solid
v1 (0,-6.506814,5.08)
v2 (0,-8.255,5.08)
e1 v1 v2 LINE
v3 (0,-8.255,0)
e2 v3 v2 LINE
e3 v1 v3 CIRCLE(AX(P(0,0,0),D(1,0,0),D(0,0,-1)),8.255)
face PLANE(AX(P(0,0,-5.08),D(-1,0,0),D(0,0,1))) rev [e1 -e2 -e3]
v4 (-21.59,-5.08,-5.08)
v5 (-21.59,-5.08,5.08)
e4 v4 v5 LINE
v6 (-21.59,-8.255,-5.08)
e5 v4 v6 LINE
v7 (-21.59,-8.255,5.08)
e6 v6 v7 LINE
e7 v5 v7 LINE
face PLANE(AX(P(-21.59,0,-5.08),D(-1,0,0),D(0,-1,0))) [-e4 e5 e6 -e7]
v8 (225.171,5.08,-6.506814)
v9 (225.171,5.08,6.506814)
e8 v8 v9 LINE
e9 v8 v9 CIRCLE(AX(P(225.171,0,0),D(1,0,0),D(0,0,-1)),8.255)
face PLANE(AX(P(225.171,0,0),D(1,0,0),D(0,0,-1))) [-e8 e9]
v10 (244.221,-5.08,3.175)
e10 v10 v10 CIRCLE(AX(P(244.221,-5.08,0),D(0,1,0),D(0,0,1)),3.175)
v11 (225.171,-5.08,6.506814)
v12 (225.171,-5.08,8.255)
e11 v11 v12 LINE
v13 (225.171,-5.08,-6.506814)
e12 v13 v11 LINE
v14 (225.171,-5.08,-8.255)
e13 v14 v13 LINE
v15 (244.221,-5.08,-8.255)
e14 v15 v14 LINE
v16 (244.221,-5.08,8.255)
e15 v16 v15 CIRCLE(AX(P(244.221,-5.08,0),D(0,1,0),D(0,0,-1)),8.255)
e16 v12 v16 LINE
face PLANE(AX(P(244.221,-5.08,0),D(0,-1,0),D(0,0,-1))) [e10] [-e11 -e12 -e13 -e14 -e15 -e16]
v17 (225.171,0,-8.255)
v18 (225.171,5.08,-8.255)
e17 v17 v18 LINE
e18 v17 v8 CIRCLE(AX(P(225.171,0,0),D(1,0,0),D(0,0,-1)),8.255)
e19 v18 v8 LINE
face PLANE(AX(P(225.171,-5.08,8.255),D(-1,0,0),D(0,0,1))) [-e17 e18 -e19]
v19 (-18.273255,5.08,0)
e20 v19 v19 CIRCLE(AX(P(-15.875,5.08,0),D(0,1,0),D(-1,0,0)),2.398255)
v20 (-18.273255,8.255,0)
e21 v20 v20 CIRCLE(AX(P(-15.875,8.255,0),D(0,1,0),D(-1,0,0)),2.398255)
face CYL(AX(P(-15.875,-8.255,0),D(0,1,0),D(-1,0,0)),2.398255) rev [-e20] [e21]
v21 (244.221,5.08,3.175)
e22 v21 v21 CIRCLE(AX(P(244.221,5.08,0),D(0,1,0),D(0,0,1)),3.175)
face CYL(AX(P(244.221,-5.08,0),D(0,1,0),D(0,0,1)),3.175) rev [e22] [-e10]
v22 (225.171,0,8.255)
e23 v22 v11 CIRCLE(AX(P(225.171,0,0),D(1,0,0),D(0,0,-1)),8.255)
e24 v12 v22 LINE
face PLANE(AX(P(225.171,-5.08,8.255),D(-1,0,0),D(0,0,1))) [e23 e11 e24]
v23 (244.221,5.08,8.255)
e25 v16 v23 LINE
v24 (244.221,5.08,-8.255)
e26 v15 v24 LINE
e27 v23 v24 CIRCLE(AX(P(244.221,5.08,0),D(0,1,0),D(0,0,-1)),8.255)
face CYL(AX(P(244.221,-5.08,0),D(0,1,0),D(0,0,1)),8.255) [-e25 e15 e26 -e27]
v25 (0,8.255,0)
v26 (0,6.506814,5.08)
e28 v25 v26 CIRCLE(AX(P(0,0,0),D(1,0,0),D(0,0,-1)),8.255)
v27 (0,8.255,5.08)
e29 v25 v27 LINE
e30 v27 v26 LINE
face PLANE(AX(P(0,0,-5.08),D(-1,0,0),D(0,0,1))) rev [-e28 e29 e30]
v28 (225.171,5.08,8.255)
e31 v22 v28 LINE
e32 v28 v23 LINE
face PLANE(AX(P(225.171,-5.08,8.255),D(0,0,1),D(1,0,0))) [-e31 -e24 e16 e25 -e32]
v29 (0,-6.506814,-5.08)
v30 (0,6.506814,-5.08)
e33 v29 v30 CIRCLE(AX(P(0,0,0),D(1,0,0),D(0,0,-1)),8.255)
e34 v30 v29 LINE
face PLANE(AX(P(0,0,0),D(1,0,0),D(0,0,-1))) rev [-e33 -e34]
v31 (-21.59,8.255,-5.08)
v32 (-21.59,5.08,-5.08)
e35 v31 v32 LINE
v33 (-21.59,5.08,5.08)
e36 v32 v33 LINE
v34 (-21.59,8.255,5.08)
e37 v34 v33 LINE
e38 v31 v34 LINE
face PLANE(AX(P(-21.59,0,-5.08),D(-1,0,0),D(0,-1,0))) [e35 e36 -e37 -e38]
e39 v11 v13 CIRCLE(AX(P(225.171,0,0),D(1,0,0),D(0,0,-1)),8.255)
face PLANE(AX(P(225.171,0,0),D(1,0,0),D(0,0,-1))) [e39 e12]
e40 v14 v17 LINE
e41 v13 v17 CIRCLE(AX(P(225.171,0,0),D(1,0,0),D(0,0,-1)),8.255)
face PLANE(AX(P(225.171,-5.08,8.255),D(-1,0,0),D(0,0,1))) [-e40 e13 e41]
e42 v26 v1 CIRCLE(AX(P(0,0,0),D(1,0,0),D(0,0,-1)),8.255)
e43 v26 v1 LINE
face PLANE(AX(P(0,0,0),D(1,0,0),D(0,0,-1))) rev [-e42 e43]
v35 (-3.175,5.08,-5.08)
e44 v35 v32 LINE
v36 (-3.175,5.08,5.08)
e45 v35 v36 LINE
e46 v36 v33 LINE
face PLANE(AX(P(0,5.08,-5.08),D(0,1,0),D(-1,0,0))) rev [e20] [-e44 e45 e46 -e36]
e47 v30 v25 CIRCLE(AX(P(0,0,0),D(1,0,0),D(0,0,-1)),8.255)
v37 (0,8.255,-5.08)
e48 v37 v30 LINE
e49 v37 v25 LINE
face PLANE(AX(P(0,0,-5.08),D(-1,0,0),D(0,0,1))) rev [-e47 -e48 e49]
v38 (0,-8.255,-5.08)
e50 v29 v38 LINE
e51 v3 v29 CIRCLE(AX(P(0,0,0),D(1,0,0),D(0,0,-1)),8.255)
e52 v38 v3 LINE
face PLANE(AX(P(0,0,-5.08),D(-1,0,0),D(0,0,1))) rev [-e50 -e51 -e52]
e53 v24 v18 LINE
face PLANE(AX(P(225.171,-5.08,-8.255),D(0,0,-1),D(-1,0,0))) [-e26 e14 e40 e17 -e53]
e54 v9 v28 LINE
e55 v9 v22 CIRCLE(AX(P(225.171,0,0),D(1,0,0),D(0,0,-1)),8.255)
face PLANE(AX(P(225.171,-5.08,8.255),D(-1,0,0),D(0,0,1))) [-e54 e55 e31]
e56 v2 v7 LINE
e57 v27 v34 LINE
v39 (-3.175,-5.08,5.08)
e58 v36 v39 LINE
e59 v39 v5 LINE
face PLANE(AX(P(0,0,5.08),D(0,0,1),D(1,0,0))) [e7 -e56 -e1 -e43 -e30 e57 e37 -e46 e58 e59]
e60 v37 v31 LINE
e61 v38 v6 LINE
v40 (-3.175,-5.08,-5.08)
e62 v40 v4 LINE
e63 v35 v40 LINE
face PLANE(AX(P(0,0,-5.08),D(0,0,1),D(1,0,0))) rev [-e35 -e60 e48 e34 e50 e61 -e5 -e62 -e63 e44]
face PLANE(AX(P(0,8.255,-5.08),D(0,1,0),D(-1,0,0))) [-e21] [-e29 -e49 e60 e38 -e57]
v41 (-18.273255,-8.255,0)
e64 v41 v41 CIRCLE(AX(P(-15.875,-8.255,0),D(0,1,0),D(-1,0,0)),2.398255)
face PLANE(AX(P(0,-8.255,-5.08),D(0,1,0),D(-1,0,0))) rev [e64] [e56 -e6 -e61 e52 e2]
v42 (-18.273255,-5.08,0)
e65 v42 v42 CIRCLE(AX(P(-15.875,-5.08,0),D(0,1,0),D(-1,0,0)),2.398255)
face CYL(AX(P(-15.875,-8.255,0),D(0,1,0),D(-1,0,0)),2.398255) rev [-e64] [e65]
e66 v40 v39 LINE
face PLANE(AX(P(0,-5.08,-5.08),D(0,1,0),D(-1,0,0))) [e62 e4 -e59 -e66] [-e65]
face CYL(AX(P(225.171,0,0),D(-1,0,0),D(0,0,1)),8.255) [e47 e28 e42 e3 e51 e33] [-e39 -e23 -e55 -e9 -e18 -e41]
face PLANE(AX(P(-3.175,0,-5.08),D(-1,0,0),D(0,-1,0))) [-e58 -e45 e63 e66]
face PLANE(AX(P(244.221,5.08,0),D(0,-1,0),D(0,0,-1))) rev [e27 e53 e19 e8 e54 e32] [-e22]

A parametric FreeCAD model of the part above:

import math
import FreeCAD as App
import Part
import Sketcher
from FreeCAD import Vector
Q = App.Units.Quantity


def add_polygon(sketch, points):
    """Adds a closed chain of lines whose ends are joined by coincident constraints."""
    first, n = sketch.GeometryCount, len(points)
    for a, b in zip(points, points[1:] + points[:1]):
        sketch.addGeometry(Part.LineSegment(App.Vector(*a, 0), App.Vector(*b, 0)), False)
    for i in range(n):
        sketch.addConstraint(Sketcher.Constraint("Coincident", first + i, 2, first + (i + 1) % n, 1))

doc = App.newDocument("Part")
params = doc.addObject("Spreadsheet::Sheet", "Params")
for row, (alias, value) in enumerate([
    ("sketch1_diameter", "0.65 in"),
    ("pad1_length", "8.865 in"),
    ("sketch2_diameter", "0.25 in"),
    ("sketch2_radius", "0.325 in"),
    ("sketch2_width", "0.75 in"),
    ("pad2_length", "0.2 in"),
    ("pad2_length2", "0.2 in"),
    ("sketch3_height", "0.4 in"),
    ("sketch3_width", "0.85 in"),
    ("sketch3_height2", "0.65 in"),
    ("sketch3_width2", "0.725 in"),
    ("pad3_length", "0.2 in"),
    ("pad3_length2", "0.2 in"),
], start=1):
    params.set(f"A{row}", alias)
    params.set(f"B{row}", "=" + value)
    params.setAlias(f"B{row}", alias)

body = doc.addObject("PartDesign::Body", "Body")

sketch1 = body.newObject("Sketcher::SketchObject", "Sketch")
sketch1.AttachmentSupport = (doc.getObject("YZ_Plane"), [""])
sketch1.MapMode = "FlatFace"
sketch1.addGeometry(Part.Circle(Vector(0, 0, 0), Vector(0, 0, 1), 8), False)
sketch1.addConstraint([
    Sketcher.Constraint("Coincident", 0, 3, -1, 1),
    Sketcher.Constraint("Diameter", 0, Q("0.65 in")),
])
sketch1.setExpression("Constraints[1]", "Params.sketch1_diameter")
pad1 = body.newObject("PartDesign::Pad", "Pad")
pad1.Profile = sketch1
pad1.setExpression("Length", "Params.pad1_length")

sketch2 = body.newObject("Sketcher::SketchObject", "Sketch001")
sketch2.AttachmentSupport = (doc.getObject("XZ_Plane"), [""])
sketch2.MapMode = "FlatFace"
sketch2.addGeometry([
    Part.LineSegment(Vector(225.2, -8.3, 0), Vector(225.2, 8.3, 0)),
    Part.LineSegment(Vector(225.2, 8.3, 0), Vector(244.2, 8.3, 0)),
    Part.ArcOfCircle(Part.Circle(Vector(244.2, 0, 0), Vector(0, 0, 1), 8.3), math.radians(-90), math.radians(90)),
    Part.LineSegment(Vector(244.2, -8.3, 0), Vector(225.2, -8.3, 0)),
    Part.Circle(Vector(244.2, 0, 0), Vector(0, 0, 1), 3.2),
], False)
sketch2.addConstraint([
    Sketcher.Constraint("Coincident", 0, 2, 1, 1),
    Sketcher.Constraint("Tangent", 1, 2, 2, 2),
    Sketcher.Constraint("Tangent", 2, 1, 3, 1),
    Sketcher.Constraint("Coincident", 3, 2, 0, 1),
    Sketcher.Constraint("Vertical", 0),
    Sketcher.Constraint("Horizontal", 1),
    Sketcher.Constraint("Horizontal", 3),
    Sketcher.Constraint("Coincident", 4, 3, 2, 3),
    Sketcher.Constraint("PointOnObject", 2, 3, -1),
    Sketcher.Constraint("Diameter", 4, Q("0.25 in")),
    Sketcher.Constraint("Radius", 2, Q("0.325 in")),
    Sketcher.Constraint("DistanceX", 1, 1, 1, 2, Q("0.75 in")),
    Sketcher.Constraint("DistanceX", -1, 1, 2, 3, Q("9.615 in")),
])
sketch2.setExpression("Constraints[9]", "Params.sketch2_diameter")
sketch2.setExpression("Constraints[10]", "Params.sketch2_radius")
sketch2.setExpression("Constraints[11]", "Params.sketch2_width")
pad2 = body.newObject("PartDesign::Pad", "Pad001")
pad2.Profile = sketch2
pad2.Type = "TwoLengths"
pad2.setExpression("Length", "Params.pad2_length")
pad2.setExpression("Length2", "Params.pad2_length2")
pad2.Reversed = True

sketch3 = body.newObject("Sketcher::SketchObject", "Sketch002")
sketch3.AttachmentSupport = (doc.getObject("XY_Plane"), [""])
sketch3.MapMode = "FlatFace"
add_polygon(sketch3, [(0, -8.3), (0, 8.3), (-21.6, 8.3), (-21.6, 5.1), (-3.2, 5.1), (-3.2, -5.1), (-21.6, -5.1), (-21.6, -8.3)])
sketch3.addConstraint([
    Sketcher.Constraint("Vertical", 0),
    Sketcher.Constraint("Horizontal", 1),
    Sketcher.Constraint("Vertical", 2),
    Sketcher.Constraint("Horizontal", 3),
    Sketcher.Constraint("Vertical", 4),
    Sketcher.Constraint("Horizontal", 5),
    Sketcher.Constraint("Vertical", 6),
    Sketcher.Constraint("Horizontal", 7),
    Sketcher.Constraint("Symmetric", 0, 2, 7, 2, -1, 1),
    Sketcher.Constraint("Symmetric", 2, 2, 5, 2, -1),
    Sketcher.Constraint("DistanceY", 4, 2, 4, 1, Q("0.4 in")),
    Sketcher.Constraint("DistanceX", 1, 2, 1, 1, Q("0.85 in")),
    Sketcher.Constraint("DistanceY", 0, 1, 0, 2, Q("0.65 in")),
    Sketcher.Constraint("DistanceX", 3, 1, 3, 2, Q("0.725 in")),
])
sketch3.setExpression("Constraints[18]", "Params.sketch3_height")
sketch3.setExpression("Constraints[19]", "Params.sketch3_width")
sketch3.setExpression("Constraints[20]", "Params.sketch3_height2")
sketch3.setExpression("Constraints[21]", "Params.sketch3_width2")
pad3 = body.newObject("PartDesign::Pad", "Pad002")
pad3.Profile = sketch3
pad3.Type = "TwoLengths"
pad3.setExpression("Length", "Params.pad3_length")
pad3.setExpression("Length2", "Params.pad3_length2")

sketch4 = body.newObject("Sketcher::SketchObject", "Sketch003")
sketch4.AttachmentSupport = (doc.getObject("XZ_Plane"), [""])
sketch4.MapMode = "FlatFace"
sketch4.AttachmentOffset = App.Placement(Vector(0, 0, 0.2 * 25.4), App.Rotation())
sketch4.addGeometry(Part.Circle(Vector(-15.9, 0, 0), Vector(0, 0, 1), 2.4), False)
sketch4.addConstraint([
    Sketcher.Constraint("PointOnObject", 0, 3, -1),
    Sketcher.Constraint("Diameter", 0, Q("4.79651 mm")),
    Sketcher.Constraint("DistanceX", 0, 3, -1, 1, Q("0.625 in")),
])
pocket1 = body.newObject("PartDesign::Pocket", "Pocket")
pocket1.Profile = sketch4
pocket1.Type = "ThroughAll"
pocket1.Midplane = True

doc.recompute()
